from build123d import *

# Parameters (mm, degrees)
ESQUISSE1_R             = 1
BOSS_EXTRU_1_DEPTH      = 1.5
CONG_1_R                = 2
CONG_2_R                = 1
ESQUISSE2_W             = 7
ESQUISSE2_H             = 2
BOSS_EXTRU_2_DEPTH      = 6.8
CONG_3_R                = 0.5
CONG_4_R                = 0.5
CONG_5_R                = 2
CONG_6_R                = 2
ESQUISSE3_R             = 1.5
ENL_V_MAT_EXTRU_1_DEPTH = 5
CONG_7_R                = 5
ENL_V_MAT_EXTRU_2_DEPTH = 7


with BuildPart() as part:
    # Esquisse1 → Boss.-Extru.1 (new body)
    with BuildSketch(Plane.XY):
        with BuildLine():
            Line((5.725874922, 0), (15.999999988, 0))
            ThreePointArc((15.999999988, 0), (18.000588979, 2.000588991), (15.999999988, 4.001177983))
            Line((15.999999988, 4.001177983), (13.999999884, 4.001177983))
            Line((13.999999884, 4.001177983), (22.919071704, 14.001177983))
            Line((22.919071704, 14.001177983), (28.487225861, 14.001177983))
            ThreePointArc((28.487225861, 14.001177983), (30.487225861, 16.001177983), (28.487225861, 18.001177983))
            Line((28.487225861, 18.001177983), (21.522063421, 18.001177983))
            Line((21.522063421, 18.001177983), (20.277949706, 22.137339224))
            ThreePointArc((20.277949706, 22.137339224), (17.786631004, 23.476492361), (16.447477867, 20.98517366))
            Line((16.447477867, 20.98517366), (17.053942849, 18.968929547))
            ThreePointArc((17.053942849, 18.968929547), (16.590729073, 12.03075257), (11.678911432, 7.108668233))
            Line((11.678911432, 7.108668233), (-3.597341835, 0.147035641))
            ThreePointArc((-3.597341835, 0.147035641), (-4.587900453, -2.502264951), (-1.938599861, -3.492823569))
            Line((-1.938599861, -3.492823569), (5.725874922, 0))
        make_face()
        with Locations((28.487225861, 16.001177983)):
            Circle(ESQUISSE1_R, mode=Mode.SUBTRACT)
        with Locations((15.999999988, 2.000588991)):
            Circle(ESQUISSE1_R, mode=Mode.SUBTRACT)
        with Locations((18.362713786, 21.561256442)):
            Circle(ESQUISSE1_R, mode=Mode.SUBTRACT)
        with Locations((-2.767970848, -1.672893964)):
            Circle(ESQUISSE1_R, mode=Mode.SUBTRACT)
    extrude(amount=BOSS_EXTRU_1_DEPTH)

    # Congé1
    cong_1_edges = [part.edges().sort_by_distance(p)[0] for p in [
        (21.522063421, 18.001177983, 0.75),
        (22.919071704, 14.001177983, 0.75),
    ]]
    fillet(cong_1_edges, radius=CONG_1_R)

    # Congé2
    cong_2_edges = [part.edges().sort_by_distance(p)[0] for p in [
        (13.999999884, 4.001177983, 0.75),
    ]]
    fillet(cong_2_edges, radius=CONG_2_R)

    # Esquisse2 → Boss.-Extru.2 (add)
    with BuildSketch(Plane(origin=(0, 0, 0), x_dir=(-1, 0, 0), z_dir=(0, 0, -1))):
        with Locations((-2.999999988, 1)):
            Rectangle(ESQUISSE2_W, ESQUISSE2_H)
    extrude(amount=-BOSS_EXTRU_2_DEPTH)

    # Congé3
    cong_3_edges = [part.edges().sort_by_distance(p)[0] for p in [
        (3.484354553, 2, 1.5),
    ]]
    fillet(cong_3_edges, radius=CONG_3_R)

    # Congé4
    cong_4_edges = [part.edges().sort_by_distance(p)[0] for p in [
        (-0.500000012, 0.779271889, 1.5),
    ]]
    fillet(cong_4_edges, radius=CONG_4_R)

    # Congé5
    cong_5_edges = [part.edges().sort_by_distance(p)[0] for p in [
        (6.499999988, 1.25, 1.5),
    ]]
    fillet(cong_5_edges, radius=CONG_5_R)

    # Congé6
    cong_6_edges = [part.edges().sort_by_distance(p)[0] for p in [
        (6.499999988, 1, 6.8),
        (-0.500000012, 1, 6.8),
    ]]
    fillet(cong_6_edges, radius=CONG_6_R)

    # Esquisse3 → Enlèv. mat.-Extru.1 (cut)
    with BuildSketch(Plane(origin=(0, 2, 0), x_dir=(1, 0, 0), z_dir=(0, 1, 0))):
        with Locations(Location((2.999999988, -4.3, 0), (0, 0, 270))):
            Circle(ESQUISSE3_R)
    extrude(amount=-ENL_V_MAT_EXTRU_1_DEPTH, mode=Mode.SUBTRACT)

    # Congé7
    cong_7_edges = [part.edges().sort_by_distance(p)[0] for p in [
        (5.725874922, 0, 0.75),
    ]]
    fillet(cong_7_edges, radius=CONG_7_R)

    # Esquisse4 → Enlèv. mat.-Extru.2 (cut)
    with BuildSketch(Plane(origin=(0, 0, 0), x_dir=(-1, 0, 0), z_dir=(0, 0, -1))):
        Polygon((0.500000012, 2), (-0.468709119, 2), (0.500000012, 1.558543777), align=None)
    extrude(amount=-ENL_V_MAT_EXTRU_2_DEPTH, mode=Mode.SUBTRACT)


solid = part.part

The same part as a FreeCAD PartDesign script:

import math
import FreeCAD as App
import Part
import Sketcher

V = App.Vector
Q = App.Units.Quantity


def edges_at(feature, points):
    """Names of the edges that pass closest to the given points."""
    edges = feature.Shape.Edges
    near = lambda p: min(range(len(edges)), key=lambda i: edges[i].distToShape(Part.Vertex(*p))[0])
    return sorted({f"Edge{near(p) + 1}" for p in points})


def add_polygon(sketch, points):
    """Adds a closed chain of lines whose ends are joined by coincident constraints."""
    first, n = sketch.GeometryCount, len(points)
    for a, b in zip(points, points[1:] + points[:1]):
        sketch.addGeometry(Part.LineSegment(App.Vector(*a, 0), App.Vector(*b, 0)), False)
    for i in range(n):
        sketch.addConstraint(Sketcher.Constraint("Coincident", first + i, 2, first + (i + 1) % n, 1))

doc = App.newDocument("Part")
body = doc.addObject("PartDesign::Body", "Body")

sketch1 = doc.addObject("Sketcher::SketchObject", "Sketch")
body.addObject(sketch1)
sketch1.AttachmentSupport = (doc.XY_Plane, [""])
sketch1.MapMode = "FlatFace"
sketch1.addGeometry(Part.LineSegment(V(5.7, 0, 0), V(16, 0, 0)), False)
sketch1.addGeometry(Part.ArcOfCircle(Part.Circle(V(16, 2, 0), V(0, 0, 1), 2), math.radians(-90), math.radians(90)), False)
sketch1.addGeometry(Part.LineSegment(V(16, 4, 0), V(14, 4, 0)), False)
sketch1.addGeometry(Part.LineSegment(V(14, 4, 0), V(22.9, 14, 0)), False)
sketch1.addGeometry(Part.LineSegment(V(22.9, 14, 0), V(28.5, 14, 0)), False)
sketch1.addGeometry(Part.ArcOfCircle(Part.Circle(V(28.5, 16, 0), V(0, 0, 1), 2), math.radians(-90), math.radians(90)), False)
sketch1.addGeometry(Part.LineSegment(V(28.5, 18, 0), V(21.5, 18, 0)), False)
sketch1.addGeometry(Part.LineSegment(V(21.5, 18, 0), V(20.3, 22.1, 0)), False)
sketch1.addGeometry(Part.ArcOfCircle(Part.Circle(V(18.4, 21.6, 0), V(0, 0, 1), 2), math.radians(17), math.radians(197)), False)
sketch1.addGeometry(Part.LineSegment(V(16.4, 21, 0), V(17.1, 19, 0)), False)
sketch1.addGeometry(Part.ArcOfCircle(Part.Circle(V(7.6, 16.1, 0), V(0, 0, 1), 9.9), math.radians(-66), math.radians(17)), False)
sketch1.addGeometry(Part.LineSegment(V(11.7, 7.1, 0), V(-3.6, 0.1, 0)), False)
sketch1.addGeometry(Part.ArcOfCircle(Part.Circle(V(-2.8, -1.7, 0), V(0, 0, 1), 2), math.radians(114), math.radians(294)), False)
sketch1.addGeometry(Part.LineSegment(V(-1.9, -3.5, 0), V(5.7, 0, 0)), False)
sketch1.addGeometry(Part.Circle(V(-2.8, -1.7, 0), V(0, 0, 1), 1), False)
sketch1.addGeometry(Part.Circle(V(16, 2, 0), V(0, 0, 1), 1), False)
sketch1.addGeometry(Part.Circle(V(28.5, 16, 0), V(0, 0, 1), 1), False)
sketch1.addGeometry(Part.Circle(V(18.4, 21.6, 0), V(0, 0, 1), 1), False)
sketch1.addConstraint(Sketcher.Constraint("Tangent", 0, 2, 1, 1))
sketch1.addConstraint(Sketcher.Constraint("Tangent", 1, 2, 2, 1))
sketch1.addConstraint(Sketcher.Constraint("Coincident", 2, 2, 3, 1))
sketch1.addConstraint(Sketcher.Constraint("Coincident", 3, 2, 4, 1))
sketch1.addConstraint(Sketcher.Constraint("Tangent", 4, 2, 5, 1))
sketch1.addConstraint(Sketcher.Constraint("Tangent", 5, 2, 6, 1))
sketch1.addConstraint(Sketcher.Constraint("Coincident", 6, 2, 7, 1))
sketch1.addConstraint(Sketcher.Constraint("Tangent", 7, 2, 8, 1))
sketch1.addConstraint(Sketcher.Constraint("Tangent", 8, 2, 9, 1))
sketch1.addConstraint(Sketcher.Constraint("Tangent", 9, 2, 10, 2))
sketch1.addConstraint(Sketcher.Constraint("Tangent", 10, 1, 11, 1))
sketch1.addConstraint(Sketcher.Constraint("Tangent", 11, 2, 12, 1))
sketch1.addConstraint(Sketcher.Constraint("Tangent", 12, 2, 13, 1))
sketch1.addConstraint(Sketcher.Constraint("Coincident", 13, 2, 0, 1))
sketch1.addConstraint(Sketcher.Constraint("Horizontal", 0))
sketch1.addConstraint(Sketcher.Constraint("Horizontal", 2))
sketch1.addConstraint(Sketcher.Constraint("Horizontal", 4))
sketch1.addConstraint(Sketcher.Constraint("Horizontal", 6))
sketch1.addConstraint(Sketcher.Constraint("Coincident", 14, 3, 12, 3))
sketch1.addConstraint(Sketcher.Constraint("Coincident", 15, 3, 1, 3))
sketch1.addConstraint(Sketcher.Constraint("Coincident", 16, 3, 5, 3))
sketch1.addConstraint(Sketcher.Constraint("Coincident", 17, 3, 8, 3))
sketch1.addConstraint(Sketcher.Constraint("Equal", 5, 8))
sketch1.addConstraint(Sketcher.Constraint("Equal", 8, 12))
sketch1.addConstraint(Sketcher.Constraint("Equal", 14, 15))
sketch1.addConstraint(Sketcher.Constraint("Equal", 15, 16))
sketch1.addConstraint(Sketcher.Constraint("Equal", 16, 17))
sketch1.addConstraint(Sketcher.Constraint("PointOnObject", 0, 2, -1))
sketch1.addConstraint(Sketcher.Constraint("Parallel", 7, 9))
sketch1.addConstraint(Sketcher.Constraint("Parallel", 11, 13))
sketch1.addConstraint(Sketcher.Constraint("Diameter", 14, Q("2 mm")))
sketch1.addConstraint(Sketcher.Constraint("Radius", 5, Q("2 mm")))
sketch1.addConstraint(Sketcher.Constraint("Radius", 10, Q("9.9 mm")))
sketch1.addConstraint(Sketcher.Constraint("DistanceX", 2, 2, 2, 1, Q("2 mm")))
sketch1.addConstraint(Sketcher.Constraint("DistanceX", -1, 1, 1, 3, Q("16 mm")))
sketch1.addConstraint(Sketcher.Constraint("DistanceY", 1, 2, 5, 3, Q("12 mm")))
sketch1.addConstraint(Sketcher.Constraint("Angle", 3, Q("48.27 deg")))
sketch1.addConstraint(Sketcher.Constraint("Radius", 1, Q("2.000589 mm")))
sketch1.addConstraint(Sketcher.Constraint("DistanceY", 12, 2, 2, 2, Q("7.494002 mm")))
sketch1.addConstraint(Sketcher.Constraint("DistanceX", 12, 2, -1, 1, Q("1.9386 mm")))
sketch1.addConstraint(Sketcher.Constraint("DistanceX", 10, 3, 5, 3, Q("20.913701 mm")))
sketch1.addConstraint(Sketcher.Constraint("Distance", 7, Q("4.319219 mm")))
sketch1.addConstraint(Sketcher.Constraint("Distance", 9, Q("2.105479 mm")))
sketch1.addConstraint(Sketcher.Constraint("Distance", 11, Q("16.787741 mm")))
sketch1.addConstraint(Sketcher.Constraint("DistanceX", 0, 1, 0, 2, Q("10.274125 mm")))
pad1 = doc.addObject("PartDesign::Pad", "Pad")
body.addObject(pad1)
pad1.Profile = sketch1
pad1.Length = 1.5
doc.recompute()

fillet = doc.addObject("PartDesign::Fillet", "Fillet")
body.addObject(fillet)
fillet.Base = (pad1, edges_at(pad1, [(21.522, 18.001, 0.75), (22.919, 14.001, 0.75)]))
fillet.Radius = 2
doc.recompute()

fillet2 = doc.addObject("PartDesign::Fillet", "Fillet001")
body.addObject(fillet2)
fillet2.Base = (fillet, edges_at(fillet, [(14, 4.001, 0.75)]))
fillet2.Radius = 1

sketch2 = doc.addObject("Sketcher::SketchObject", "Sketch001")
body.addObject(sketch2)
sketch2.AttachmentSupport = (doc.XY_Plane, [""])
sketch2.MapMode = "FlatFace"
add_polygon(sketch2, [(6.5, 2), (6.5, 0), (-0.5, 0), (-0.5, 2)])
sketch2.addConstraint(Sketcher.Constraint("Vertical", 0))
sketch2.addConstraint(Sketcher.Constraint("Horizontal", 1))
sketch2.addConstraint(Sketcher.Constraint("Vertical", 2))
sketch2.addConstraint(Sketcher.Constraint("Horizontal", 3))
sketch2.addConstraint(Sketcher.Constraint("PointOnObject", 0, 2, -1))
sketch2.addConstraint(Sketcher.Constraint("DistanceX", 1, 2, 1, 1, Q("7 mm")))
sketch2.addConstraint(Sketcher.Constraint("DistanceY", 0, 2, 0, 1, Q("2 mm")))
sketch2.addConstraint(Sketcher.Constraint("DistanceX", -1, 1, 0, 2, Q("6.5 mm")))
pad2 = doc.addObject("PartDesign::Pad", "Pad001")
body.addObject(pad2)
pad2.Profile = sketch2
pad2.Length = 6.8
doc.recompute()

fillet3 = doc.addObject("PartDesign::Fillet", "Fillet002")
body.addObject(fillet3)
fillet3.Base = (pad2, edges_at(pad2, [(3.484, 2, 1.5)]))
fillet3.Radius = 0.5
doc.recompute()

fillet4 = doc.addObject("PartDesign::Fillet", "Fillet003")
body.addObject(fillet4)
fillet4.Base = (fillet3, edges_at(fillet3, [(-0.5, 0.779, 1.5)]))
fillet4.Radius = 0.5
doc.recompute()

fillet5 = doc.addObject("PartDesign::Fillet", "Fillet004")
body.addObject(fillet5)
fillet5.Base = (fillet4, edges_at(fillet4, [(6.5, 1.25, 1.5)]))
fillet5.Radius = 2
doc.recompute()

fillet6 = doc.addObject("PartDesign::Fillet", "Fillet005")
body.addObject(fillet6)
fillet6.Base = (fillet5, edges_at(fillet5, [(6.5, 1, 6.8), (-0.5, 1, 6.8)]))
fillet6.Radius = 2

sketch3 = doc.addObject("Sketcher::SketchObject", "Sketch002")
body.addObject(sketch3)
sketch3.AttachmentSupport = (doc.XZ_Plane, [""])
sketch3.MapMode = "FlatFace"
sketch3.AttachmentOffset = App.Placement(V(0, 0, -2), App.Rotation())
sketch3.addGeometry(Part.Circle(V(3, 4.3, 0), V(0, 0, 1), 1.5), False)
sketch3.addConstraint(Sketcher.Constraint("Diameter", 0, Q("3 mm")))
sketch3.addConstraint(Sketcher.Constraint("DistanceX", -1, 1, 0, 3, Q("3 mm")))
sketch3.addConstraint(Sketcher.Constraint("DistanceY", -1, 1, 0, 3, Q("4.3 mm")))
pocket1 = doc.addObject("PartDesign::Pocket", "Pocket")
body.addObject(pocket1)
pocket1.Profile = sketch3
pocket1.Length = 5
pocket1.Reversed = True
doc.recompute()

fillet7 = doc.addObject("PartDesign::Fillet", "Fillet006")
body.addObject(fillet7)
fillet7.Base = (pocket1, edges_at(pocket1, [(5.726, 0, 0.75)]))
fillet7.Radius = 5

sketch4 = doc.addObject("Sketcher::SketchObject", "Sketch003")
body.addObject(sketch4)
sketch4.AttachmentSupport = (doc.XY_Plane, [""])
sketch4.MapMode = "FlatFace"
add_polygon(sketch4, [(-0.5, 2), (0.47, 2), (-0.5, 1.56)])
sketch4.addConstraint(Sketcher.Constraint("Horizontal", 0))
sketch4.addConstraint(Sketcher.Constraint("Vertical", 2))
sketch4.addConstraint(Sketcher.Constraint("DistanceY", -1, 1, 0, 2, Q("2 mm")))
sketch4.addConstraint(Sketcher.Constraint("DistanceX", 1, 2, -1, 1, Q("0.5 mm")))
sketch4.addConstraint(Sketcher.Constraint("DistanceX", 0, 1, 0, 2, Q("0.968709 mm")))
sketch4.addConstraint(Sketcher.Constraint("DistanceY", 2, 1, 2, 2, Q("0.441456 mm")))
pocket2 = doc.addObject("PartDesign::Pocket", "Pocket001")
body.addObject(pocket2)
pocket2.Profile = sketch4
pocket2.Length = 7
pocket2.Reversed = True

doc.recompute()
